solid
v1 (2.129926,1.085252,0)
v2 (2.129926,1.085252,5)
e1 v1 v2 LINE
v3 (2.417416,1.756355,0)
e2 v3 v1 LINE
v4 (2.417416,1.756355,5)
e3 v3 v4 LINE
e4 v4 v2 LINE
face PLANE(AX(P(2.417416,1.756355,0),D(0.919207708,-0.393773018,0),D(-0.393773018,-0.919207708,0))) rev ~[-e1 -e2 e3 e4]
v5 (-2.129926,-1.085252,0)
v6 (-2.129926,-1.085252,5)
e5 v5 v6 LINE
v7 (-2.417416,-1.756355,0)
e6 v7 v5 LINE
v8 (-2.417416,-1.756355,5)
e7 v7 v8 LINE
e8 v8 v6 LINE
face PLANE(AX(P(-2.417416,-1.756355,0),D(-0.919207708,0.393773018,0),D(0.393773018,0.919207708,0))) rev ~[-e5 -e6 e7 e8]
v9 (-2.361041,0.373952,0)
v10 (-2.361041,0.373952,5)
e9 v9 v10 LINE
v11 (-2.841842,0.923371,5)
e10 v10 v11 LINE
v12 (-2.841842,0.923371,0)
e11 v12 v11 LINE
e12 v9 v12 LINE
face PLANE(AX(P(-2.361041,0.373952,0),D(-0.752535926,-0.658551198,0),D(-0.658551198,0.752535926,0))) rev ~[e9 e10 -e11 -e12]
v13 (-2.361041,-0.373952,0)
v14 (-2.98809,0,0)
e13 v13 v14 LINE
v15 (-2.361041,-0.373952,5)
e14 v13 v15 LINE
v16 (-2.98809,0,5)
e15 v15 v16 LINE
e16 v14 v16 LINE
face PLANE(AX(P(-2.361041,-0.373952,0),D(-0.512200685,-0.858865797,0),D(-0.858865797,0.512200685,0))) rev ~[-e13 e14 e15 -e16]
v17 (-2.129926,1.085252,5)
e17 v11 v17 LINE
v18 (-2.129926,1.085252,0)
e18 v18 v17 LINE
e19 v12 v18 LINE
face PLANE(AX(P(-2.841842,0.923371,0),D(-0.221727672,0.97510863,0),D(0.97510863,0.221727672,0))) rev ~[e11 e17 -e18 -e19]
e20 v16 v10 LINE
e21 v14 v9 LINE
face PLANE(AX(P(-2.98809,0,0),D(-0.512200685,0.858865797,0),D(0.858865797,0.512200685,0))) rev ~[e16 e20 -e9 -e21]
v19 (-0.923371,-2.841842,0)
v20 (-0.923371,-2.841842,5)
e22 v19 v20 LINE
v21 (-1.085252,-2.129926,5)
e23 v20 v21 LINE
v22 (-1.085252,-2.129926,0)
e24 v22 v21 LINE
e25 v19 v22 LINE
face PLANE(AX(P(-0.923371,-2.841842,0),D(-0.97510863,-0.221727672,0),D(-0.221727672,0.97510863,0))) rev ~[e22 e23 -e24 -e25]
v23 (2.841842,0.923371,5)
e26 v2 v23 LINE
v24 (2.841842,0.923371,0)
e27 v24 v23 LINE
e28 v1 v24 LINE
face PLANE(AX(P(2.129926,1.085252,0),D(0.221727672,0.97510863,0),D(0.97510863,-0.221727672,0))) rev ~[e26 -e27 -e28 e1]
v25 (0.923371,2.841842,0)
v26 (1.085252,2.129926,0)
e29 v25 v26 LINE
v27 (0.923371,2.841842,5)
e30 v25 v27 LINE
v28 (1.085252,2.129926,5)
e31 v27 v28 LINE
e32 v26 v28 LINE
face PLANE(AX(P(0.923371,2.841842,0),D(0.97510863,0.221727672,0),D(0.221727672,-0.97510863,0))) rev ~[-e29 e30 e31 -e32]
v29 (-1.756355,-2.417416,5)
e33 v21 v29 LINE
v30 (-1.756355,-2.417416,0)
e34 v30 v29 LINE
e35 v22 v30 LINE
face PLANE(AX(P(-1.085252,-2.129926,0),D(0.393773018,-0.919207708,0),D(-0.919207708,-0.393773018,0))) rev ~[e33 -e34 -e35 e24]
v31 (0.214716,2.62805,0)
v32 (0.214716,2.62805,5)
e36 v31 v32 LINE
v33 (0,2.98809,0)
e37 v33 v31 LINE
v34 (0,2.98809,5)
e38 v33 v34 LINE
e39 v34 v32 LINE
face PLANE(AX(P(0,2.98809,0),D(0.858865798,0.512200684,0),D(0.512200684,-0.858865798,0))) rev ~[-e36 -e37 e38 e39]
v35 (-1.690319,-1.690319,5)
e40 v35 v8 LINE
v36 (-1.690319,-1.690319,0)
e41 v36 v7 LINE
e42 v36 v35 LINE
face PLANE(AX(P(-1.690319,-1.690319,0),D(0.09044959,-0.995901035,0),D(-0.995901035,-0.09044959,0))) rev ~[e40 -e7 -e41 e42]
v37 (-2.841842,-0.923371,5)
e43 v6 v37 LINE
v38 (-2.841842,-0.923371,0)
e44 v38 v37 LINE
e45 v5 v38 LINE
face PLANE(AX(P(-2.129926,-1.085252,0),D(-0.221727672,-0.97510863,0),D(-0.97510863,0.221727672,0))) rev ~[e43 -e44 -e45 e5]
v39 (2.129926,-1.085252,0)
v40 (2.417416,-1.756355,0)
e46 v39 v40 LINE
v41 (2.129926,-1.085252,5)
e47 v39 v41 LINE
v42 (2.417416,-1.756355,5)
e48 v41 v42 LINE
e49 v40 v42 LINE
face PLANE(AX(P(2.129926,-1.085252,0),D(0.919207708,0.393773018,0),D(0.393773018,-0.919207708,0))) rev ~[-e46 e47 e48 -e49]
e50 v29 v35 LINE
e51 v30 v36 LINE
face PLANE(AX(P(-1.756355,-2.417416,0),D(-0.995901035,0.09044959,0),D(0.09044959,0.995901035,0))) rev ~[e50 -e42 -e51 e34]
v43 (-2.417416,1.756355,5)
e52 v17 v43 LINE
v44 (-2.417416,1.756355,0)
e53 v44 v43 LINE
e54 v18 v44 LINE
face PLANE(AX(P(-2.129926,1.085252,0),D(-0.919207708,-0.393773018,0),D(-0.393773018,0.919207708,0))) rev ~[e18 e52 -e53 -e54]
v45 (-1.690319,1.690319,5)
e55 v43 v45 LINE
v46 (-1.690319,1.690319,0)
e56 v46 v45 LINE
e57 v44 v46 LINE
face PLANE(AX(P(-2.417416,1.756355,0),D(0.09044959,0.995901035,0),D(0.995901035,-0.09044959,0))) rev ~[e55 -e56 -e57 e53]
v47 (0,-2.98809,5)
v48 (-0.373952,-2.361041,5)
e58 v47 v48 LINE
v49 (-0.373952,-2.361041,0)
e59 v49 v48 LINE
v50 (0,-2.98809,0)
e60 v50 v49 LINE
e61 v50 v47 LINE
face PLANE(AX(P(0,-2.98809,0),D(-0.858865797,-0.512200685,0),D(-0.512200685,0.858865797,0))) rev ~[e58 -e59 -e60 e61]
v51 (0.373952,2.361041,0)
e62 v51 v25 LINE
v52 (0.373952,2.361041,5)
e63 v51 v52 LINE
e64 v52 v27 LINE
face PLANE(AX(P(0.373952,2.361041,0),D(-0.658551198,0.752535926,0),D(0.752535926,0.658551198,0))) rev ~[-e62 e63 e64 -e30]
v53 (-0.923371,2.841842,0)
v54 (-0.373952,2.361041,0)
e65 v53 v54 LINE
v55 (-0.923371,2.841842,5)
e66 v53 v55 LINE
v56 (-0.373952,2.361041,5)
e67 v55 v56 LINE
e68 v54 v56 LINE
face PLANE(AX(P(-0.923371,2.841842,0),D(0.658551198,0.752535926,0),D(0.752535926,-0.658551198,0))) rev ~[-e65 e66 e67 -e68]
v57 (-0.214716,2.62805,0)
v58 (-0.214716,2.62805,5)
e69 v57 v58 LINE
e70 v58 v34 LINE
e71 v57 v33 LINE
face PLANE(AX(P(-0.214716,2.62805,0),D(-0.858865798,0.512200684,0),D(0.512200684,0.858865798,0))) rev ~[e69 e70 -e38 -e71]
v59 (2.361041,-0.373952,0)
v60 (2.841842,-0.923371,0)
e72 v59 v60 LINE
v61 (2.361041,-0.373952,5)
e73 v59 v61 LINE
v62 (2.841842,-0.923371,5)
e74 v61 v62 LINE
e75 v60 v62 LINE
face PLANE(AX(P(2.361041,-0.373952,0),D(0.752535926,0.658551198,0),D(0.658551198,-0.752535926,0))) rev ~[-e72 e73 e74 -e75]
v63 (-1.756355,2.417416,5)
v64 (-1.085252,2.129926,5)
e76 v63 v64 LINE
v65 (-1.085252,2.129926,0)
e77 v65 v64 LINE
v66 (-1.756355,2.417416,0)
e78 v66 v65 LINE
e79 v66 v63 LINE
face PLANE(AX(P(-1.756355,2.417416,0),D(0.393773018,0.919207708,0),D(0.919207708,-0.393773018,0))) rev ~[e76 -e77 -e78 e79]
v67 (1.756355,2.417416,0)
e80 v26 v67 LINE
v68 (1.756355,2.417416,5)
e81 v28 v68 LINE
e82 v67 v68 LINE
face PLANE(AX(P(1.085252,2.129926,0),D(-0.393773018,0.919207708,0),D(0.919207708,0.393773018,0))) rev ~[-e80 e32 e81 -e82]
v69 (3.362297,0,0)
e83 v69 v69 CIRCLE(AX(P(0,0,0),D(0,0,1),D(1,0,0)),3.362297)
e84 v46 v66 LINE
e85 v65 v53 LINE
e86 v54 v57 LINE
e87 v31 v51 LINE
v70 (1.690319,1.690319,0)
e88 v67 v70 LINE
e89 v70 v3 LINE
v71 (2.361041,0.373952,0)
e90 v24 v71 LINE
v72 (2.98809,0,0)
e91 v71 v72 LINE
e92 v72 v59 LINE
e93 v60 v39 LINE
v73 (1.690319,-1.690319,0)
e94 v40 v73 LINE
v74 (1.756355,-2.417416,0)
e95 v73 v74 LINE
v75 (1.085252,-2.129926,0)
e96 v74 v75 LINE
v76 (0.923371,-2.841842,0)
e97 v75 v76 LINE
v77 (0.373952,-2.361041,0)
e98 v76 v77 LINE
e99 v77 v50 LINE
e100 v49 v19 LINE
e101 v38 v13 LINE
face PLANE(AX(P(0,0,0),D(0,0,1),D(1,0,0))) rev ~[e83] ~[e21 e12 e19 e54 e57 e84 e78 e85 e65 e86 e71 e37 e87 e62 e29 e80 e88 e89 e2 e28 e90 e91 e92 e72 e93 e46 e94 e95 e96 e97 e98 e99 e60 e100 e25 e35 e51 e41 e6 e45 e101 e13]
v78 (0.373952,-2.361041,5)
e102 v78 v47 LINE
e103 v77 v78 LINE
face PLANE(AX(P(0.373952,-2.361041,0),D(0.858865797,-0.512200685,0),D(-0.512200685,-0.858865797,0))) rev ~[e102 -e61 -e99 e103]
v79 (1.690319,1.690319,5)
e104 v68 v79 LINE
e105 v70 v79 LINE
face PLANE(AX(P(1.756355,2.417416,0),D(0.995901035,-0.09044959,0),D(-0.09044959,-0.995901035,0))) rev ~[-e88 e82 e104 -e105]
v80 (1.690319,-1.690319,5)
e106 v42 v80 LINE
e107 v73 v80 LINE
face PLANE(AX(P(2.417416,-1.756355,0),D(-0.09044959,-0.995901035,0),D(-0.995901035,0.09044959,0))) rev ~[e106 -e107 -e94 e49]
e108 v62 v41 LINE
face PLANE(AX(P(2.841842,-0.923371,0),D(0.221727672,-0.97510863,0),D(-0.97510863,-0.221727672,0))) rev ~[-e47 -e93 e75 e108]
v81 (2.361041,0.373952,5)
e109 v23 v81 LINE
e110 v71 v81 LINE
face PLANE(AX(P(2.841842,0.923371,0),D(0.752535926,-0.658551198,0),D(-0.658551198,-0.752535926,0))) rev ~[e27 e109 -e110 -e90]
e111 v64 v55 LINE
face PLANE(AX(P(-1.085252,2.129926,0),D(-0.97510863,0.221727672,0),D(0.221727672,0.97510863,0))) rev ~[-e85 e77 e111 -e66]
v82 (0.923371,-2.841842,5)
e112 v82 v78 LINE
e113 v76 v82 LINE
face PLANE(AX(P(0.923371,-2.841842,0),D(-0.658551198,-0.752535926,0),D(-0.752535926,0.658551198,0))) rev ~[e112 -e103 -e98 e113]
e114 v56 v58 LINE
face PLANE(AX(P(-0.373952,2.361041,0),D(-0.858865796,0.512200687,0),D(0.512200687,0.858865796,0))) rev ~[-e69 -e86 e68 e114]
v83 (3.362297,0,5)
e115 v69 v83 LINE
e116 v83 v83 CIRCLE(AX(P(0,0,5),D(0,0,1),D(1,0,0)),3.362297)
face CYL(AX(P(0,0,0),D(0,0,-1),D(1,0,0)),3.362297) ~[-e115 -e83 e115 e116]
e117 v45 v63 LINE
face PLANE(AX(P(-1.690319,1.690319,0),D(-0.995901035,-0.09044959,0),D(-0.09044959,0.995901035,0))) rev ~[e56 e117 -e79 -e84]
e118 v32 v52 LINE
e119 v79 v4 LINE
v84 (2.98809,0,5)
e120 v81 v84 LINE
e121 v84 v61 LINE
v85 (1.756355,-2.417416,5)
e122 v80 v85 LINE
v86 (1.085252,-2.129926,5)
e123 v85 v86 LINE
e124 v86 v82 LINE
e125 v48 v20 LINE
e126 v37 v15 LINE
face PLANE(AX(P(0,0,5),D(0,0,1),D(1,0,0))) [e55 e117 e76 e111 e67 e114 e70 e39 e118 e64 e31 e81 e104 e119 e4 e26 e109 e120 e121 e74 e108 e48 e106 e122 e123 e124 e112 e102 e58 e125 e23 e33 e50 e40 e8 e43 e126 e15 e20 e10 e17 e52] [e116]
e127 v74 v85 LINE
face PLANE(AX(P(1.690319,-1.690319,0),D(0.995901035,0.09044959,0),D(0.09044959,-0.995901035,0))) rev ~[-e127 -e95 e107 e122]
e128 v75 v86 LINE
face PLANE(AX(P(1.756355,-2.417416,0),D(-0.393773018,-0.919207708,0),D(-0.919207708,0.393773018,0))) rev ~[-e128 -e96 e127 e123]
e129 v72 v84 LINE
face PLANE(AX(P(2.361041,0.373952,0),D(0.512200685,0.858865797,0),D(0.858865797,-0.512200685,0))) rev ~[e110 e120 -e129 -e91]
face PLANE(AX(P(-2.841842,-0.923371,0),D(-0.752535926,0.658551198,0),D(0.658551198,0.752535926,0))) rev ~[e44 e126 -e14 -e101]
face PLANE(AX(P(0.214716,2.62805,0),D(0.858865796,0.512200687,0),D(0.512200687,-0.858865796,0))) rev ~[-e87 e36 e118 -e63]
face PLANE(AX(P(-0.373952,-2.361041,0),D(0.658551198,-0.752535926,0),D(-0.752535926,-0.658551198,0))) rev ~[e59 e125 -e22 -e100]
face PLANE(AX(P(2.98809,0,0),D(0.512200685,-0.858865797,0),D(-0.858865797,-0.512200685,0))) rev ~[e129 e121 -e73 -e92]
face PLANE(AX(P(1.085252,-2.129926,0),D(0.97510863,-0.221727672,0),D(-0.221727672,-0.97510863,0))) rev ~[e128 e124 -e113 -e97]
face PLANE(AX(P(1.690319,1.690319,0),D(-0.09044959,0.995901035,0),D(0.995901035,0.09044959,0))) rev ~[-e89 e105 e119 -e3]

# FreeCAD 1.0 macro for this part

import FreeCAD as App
import Part
import Sketcher

V = App.Vector


def add_polygon(sketch, points):
    """Adds a closed chain of lines whose ends are joined by coincident constraints."""
    first, n = sketch.GeometryCount, len(points)
    for a, b in zip(points, points[1:] + points[:1]):
        sketch.addGeometry(Part.LineSegment(App.Vector(*a, 0), App.Vector(*b, 0)), False)
    for i in range(n):
        sketch.addConstraint(Sketcher.Constraint("Coincident", first + i, 2, first + (i + 1) % n, 1))

doc = App.newDocument("Part")
params = doc.addObject("Spreadsheet::Sheet", "Params")
for row, (alias, value) in enumerate([
    ("pad1_length", "5 mm"),
], start=1):
    params.set(f"A{row}", alias)
    params.set(f"B{row}", "=" + value)
    params.setAlias(f"B{row}", alias)

body = doc.addObject("PartDesign::Body", "Body")

# Sketch on XY plane
sketch1 = body.newObject("Sketcher::SketchObject", "Sketch")
sketch1.AttachmentSupport = (doc.getObject("XY_Plane"), [""])
sketch1.MapMode = "FlatFace"
sketch1.addGeometry(Part.Circle(V(0, 0, 0), V(0, 0, 1), 3.36), False)  # 0
add_polygon(sketch1, [(0, 2.99), (0.21, 2.63), (0.37, 2.36), (0.92, 2.84), (1.09, 2.13), (1.76, 2.42), (1.69, 1.69), (2.42, 1.76), (2.13, 1.09), (2.84, 0.92), (2.36, 0.37), (2.99, 0), (2.36, -0.37), (2.84, -0.92), (2.13, -1.09), (2.42, -1.76), (1.69, -1.69), (1.76, -2.42), (1.09, -2.13), (0.92, -2.84), (0.37, -2.36), (0, -2.99), (-0.37, -2.36), (-0.92, -2.84), (-1.09, -2.13), (-1.76, -2.42), (-1.69, -1.69), (-2.42, -1.76), (-2.13, -1.09), (-2.84, -0.92), (-2.36, -0.37), (-2.99, 0), (-2.36, 0.37), (-2.84, 0.92), (-2.13, 1.09), (-2.42, 1.76), (-1.69, 1.69), (-1.76, 2.42), (-1.09, 2.13), (-0.92, 2.84), (-0.37, 2.36), (-0.21, 2.63)])  # lines 1-42
sketch1.addConstraint([
    Sketcher.Constraint("Coincident", 0, 3, -1, 1),
    Sketcher.Constraint("Symmetric", 2, 2, 22, 2, -1, 1),
    Sketcher.Constraint("Symmetric", 3, 2, 23, 2, -1, 1),
    Sketcher.Constraint("Symmetric", 4, 2, 24, 2, -1, 1),
    Sketcher.Constraint("Symmetric", 5, 2, 25, 2, -1, 1),
    Sketcher.Constraint("Symmetric", 6, 2, 26, 2, -1, 1),
    Sketcher.Constraint("Symmetric", 7, 2, 27, 2, -1, 1),
    Sketcher.Constraint("Symmetric", 8, 2, 28, 2, -1, 1),
    Sketcher.Constraint("Symmetric", 9, 2, 29, 2, -1, 1),
    Sketcher.Constraint("Symmetric", 10, 2, 30, 2, -1, 1),
    Sketcher.Constraint("Symmetric", 11, 2, 31, 2, -1, 1),
    Sketcher.Constraint("Symmetric", 12, 2, 32, 2, -1, 1),
    Sketcher.Constraint("Symmetric", 13, 2, 33, 2, -1, 1),
    Sketcher.Constraint("Symmetric", 14, 2, 34, 2, -1, 1),
    Sketcher.Constraint("Symmetric", 15, 2, 35, 2, -1, 1),
    Sketcher.Constraint("Symmetric", 16, 2, 36, 2, -1, 1),
    Sketcher.Constraint("Symmetric", 17, 2, 37, 2, -1, 1),
    Sketcher.Constraint("Symmetric", 18, 2, 38, 2, -1, 1),
    Sketcher.Constraint("Symmetric", 19, 2, 39, 2, -1, 1),
    Sketcher.Constraint("Symmetric", 20, 2, 40, 2, -1, 1),
    Sketcher.Constraint("Symmetric", 21, 2, 42, 2, -1, 1),
    Sketcher.Constraint("Symmetric", 20, 2, 22, 2, -2),
    Sketcher.Constraint("Symmetric", 19, 2, 23, 2, -2),
    Sketcher.Constraint("Symmetric", 18, 2, 24, 2, -2),
    Sketcher.Constraint("Symmetric", 17, 2, 25, 2, -2),
    Sketcher.Constraint("Symmetric", 16, 2, 26, 2, -2),
    Sketcher.Constraint("Symmetric", 15, 2, 27, 2, -2),
    Sketcher.Constraint("Symmetric", 14, 2, 28, 2, -2),
    Sketcher.Constraint("Symmetric", 13, 2, 29, 2, -2),
    Sketcher.Constraint("Symmetric", 12, 2, 30, 2, -2),
    Sketcher.Constraint("Symmetric", 1, 2, 41, 2, -2),
    Sketcher.Constraint("PointOnObject", 11, 2, -1),
    Sketcher.Constraint("PointOnObject", 21, 2, -2),
    Sketcher.Constraint("Parallel", 1, 2),
    Sketcher.Constraint("Perpendicular", 2, 12),
    Sketcher.Constraint("Perpendicular", 3, 13),
    Sketcher.Constraint("Perpendicular", 4, 14),
    Sketcher.Constraint("Perpendicular", 5, 15),
    Sketcher.Constraint("Perpendicular", 6, 16),
    Sketcher.Constraint("Equal", 3, 4),
    Sketcher.Constraint("Equal", 4, 5),
    Sketcher.Constraint("Equal", 5, 6),
    Sketcher.Constraint("Equal", 6, 7),
    Sketcher.Constraint("Equal", 7, 8),
    Sketcher.Constraint("Equal", 8, 9),
    Sketcher.Constraint("Equal", 9, 10),
    Sketcher.Constraint("Equal", 10, 11),
    Sketcher.Constraint("Equal", 20, 21),
    Sketcher.Constraint("Diameter", 0, 6.724594),
    Sketcher.Constraint("DistanceY", 2, 2, 3, 2, 0.480801),
    Sketcher.Constraint("DistanceX", 2, 2, 4, 2, 0.711299),
    Sketcher.Constraint("Distance", 3, 0.730089),
    Sketcher.Constraint("DistanceY", -1, 1, 1, 2, 2.62805),
    Sketcher.Constraint("DistanceY", -1, 1, 2, 2, 2.361041),
    Sketcher.Constraint("DistanceX", -1, 1, 3, 2, 0.923371),
    Sketcher.Constraint("DistanceX", -1, 1, 6, 2, 1.690319),
])
pad1 = body.newObject("PartDesign::Pad", "Pad")
pad1.Profile = sketch1
pad1.setExpression("Length", "Params.pad1_length")

doc.recompute()
